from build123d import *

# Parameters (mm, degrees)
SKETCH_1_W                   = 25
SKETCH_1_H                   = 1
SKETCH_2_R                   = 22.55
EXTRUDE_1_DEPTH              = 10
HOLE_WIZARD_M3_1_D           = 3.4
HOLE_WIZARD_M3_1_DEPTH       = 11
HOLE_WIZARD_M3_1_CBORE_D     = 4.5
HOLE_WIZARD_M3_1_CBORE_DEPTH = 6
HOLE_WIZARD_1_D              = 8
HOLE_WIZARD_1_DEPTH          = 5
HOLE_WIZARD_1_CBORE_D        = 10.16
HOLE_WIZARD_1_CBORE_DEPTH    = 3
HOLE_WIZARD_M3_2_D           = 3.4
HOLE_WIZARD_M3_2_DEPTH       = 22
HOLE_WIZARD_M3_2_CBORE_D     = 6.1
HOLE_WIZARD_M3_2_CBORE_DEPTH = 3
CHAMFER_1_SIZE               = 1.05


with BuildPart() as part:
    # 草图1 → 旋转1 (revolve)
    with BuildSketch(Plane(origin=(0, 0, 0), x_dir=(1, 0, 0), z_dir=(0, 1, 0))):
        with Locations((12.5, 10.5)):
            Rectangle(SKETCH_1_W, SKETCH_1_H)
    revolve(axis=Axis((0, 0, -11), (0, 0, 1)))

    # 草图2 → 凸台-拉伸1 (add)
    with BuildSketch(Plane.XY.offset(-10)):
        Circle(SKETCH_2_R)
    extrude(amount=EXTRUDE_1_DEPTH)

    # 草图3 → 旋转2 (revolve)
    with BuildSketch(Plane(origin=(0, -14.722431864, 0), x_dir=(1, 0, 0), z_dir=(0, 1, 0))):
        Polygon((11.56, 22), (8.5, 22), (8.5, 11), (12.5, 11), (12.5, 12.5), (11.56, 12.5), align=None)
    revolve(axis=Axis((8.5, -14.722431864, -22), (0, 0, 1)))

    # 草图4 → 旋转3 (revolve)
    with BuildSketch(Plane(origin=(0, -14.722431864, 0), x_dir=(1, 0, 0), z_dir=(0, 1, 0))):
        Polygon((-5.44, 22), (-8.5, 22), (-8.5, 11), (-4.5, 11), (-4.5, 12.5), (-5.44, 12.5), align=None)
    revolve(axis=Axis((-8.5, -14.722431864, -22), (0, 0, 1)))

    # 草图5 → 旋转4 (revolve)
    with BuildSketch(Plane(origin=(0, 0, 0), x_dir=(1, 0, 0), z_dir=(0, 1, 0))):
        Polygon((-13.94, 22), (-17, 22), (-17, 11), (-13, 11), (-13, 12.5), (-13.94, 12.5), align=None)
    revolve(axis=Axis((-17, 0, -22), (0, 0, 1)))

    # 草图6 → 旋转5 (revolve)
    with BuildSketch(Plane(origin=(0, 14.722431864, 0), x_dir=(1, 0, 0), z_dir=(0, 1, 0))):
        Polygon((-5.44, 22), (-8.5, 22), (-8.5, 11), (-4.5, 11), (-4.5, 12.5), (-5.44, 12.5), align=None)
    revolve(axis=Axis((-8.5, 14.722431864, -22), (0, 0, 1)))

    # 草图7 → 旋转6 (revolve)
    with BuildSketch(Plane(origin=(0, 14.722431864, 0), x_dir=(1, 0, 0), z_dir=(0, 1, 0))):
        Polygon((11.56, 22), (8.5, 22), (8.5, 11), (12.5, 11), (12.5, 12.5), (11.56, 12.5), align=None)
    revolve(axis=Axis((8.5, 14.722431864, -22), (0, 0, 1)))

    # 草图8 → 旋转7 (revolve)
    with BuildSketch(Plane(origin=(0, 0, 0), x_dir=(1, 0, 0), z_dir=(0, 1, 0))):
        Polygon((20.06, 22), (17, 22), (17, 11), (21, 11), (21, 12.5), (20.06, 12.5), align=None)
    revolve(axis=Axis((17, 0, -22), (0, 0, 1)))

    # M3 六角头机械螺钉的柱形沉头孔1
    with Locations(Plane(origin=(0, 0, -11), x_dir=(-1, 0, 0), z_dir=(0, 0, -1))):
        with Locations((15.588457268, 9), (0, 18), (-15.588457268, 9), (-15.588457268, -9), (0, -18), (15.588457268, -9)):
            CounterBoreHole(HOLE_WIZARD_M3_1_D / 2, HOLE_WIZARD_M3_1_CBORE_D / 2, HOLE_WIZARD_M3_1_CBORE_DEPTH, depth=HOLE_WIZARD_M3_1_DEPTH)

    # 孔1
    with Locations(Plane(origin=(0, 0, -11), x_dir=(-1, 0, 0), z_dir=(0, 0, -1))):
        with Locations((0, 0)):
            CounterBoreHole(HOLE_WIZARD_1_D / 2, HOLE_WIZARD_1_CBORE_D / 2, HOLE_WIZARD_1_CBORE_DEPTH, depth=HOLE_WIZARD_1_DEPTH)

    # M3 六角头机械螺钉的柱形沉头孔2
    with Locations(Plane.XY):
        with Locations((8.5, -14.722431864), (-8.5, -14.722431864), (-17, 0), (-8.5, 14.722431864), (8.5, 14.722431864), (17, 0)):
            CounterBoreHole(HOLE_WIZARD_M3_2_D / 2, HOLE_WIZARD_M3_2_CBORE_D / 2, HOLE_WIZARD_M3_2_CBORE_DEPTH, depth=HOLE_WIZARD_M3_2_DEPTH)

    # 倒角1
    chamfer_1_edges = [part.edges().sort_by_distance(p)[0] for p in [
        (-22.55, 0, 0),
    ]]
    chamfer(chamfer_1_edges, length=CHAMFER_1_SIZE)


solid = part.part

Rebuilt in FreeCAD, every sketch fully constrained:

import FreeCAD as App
import Part
import Sketcher

V = App.Vector
Q = App.Units.Quantity


def edges_at(feature, points):
    """Names of the edges that pass closest to the given points."""
    edges = feature.Shape.Edges
    near = lambda p: min(range(len(edges)), key=lambda i: edges[i].distToShape(Part.Vertex(*p))[0])
    return sorted({f"Edge{near(p) + 1}" for p in points})


def add_polygon(sketch, points):
    """Adds a closed chain of lines whose ends are joined by coincident constraints."""
    first, n = sketch.GeometryCount, len(points)
    for a, b in zip(points, points[1:] + points[:1]):
        sketch.addGeometry(Part.LineSegment(App.Vector(*a, 0), App.Vector(*b, 0)), False)
    for i in range(n):
        sketch.addConstraint(Sketcher.Constraint("Coincident", first + i, 2, first + (i + 1) % n, 1))

doc = App.newDocument("Part")
body = doc.addObject("PartDesign::Body", "Body")

sketch1 = body.newObject("Sketcher::SketchObject", "Sketch")
sketch1.AttachmentSupport = (doc.getObject("XZ_Plane"), [""])
sketch1.MapMode = "FlatFace"
add_polygon(sketch1, [(0, -11), (0, -10), (25, -10), (25, -11)])
sketch1.addConstraint(Sketcher.Constraint("Vertical", 0))
sketch1.addConstraint(Sketcher.Constraint("Horizontal", 1))
sketch1.addConstraint(Sketcher.Constraint("Vertical", 2))
sketch1.addConstraint(Sketcher.Constraint("Horizontal", 3))
sketch1.addConstraint(Sketcher.Constraint("PointOnObject", 0, 2, -2))
sketch1.addConstraint(Sketcher.Constraint("DistanceX", 1, 1, 1, 2, Q("25 mm")))
sketch1.addConstraint(Sketcher.Constraint("DistanceY", 0, 1, 0, 2, Q("1 mm")))
sketch1.addConstraint(Sketcher.Constraint("DistanceY", 0, 2, -1, 1, Q("10 mm")))
revolution = body.newObject("PartDesign::Revolution", "Revolution")
revolution.Profile = sketch1
revolution.ReferenceAxis = (sketch1, ["V_Axis"])
revolution.Angle = 360

sketch2 = body.newObject("Sketcher::SketchObject", "Sketch001")
sketch2.AttachmentSupport = (doc.getObject("XY_Plane"), [""])
sketch2.MapMode = "FlatFace"
sketch2.AttachmentOffset = App.Placement(V(0, 0, -10), App.Rotation())
sketch2.addGeometry(Part.Circle(V(0, 0, 0), V(0, 0, 1), 23), False)
sketch2.addConstraint(Sketcher.Constraint("Coincident", 0, 3, -1, 1))
sketch2.addConstraint(Sketcher.Constraint("Diameter", 0, Q("45.1 mm")))
pad1 = body.newObject("PartDesign::Pad", "Pad")
pad1.Profile = sketch2
pad1.Length = 10

sketch3 = body.newObject("Sketcher::SketchObject", "Sketch002")
sketch3.AttachmentSupport = (doc.getObject("XZ_Plane"), [""])
sketch3.MapMode = "FlatFace"
sketch3.AttachmentOffset = App.Placement(V(0, 0, 14.722432), App.Rotation())
add_polygon(sketch3, [(11.6, -22), (8.5, -22), (8.5, -11), (12.5, -11), (12.5, -12.5), (11.6, -12.5)])
sketch3.addGeometry(Part.LineSegment(V(8.5, -22, 0), V(8.5, -11, 0)), True)
sketch3.addConstraint(Sketcher.Constraint("Horizontal", 0))
sketch3.addConstraint(Sketcher.Constraint("Vertical", 1))
sketch3.addConstraint(Sketcher.Constraint("Horizontal", 2))
sketch3.addConstraint(Sketcher.Constraint("Vertical", 3))
sketch3.addConstraint(Sketcher.Constraint("Horizontal", 4))
sketch3.addConstraint(Sketcher.Constraint("Vertical", 5))
sketch3.addConstraint(Sketcher.Constraint("Vertical", 6))
sketch3.addConstraint(Sketcher.Constraint("Coincident", 6, 1, 0, 2))
sketch3.addConstraint(Sketcher.Constraint("Horizontal", 2, 2, 6, 2))
sketch3.addConstraint(Sketcher.Constraint("DistanceX", 2, 1, 2, 2, Q("4 mm")))
sketch3.addConstraint(Sketcher.Constraint("DistanceY", 1, 1, 1, 2, Q("11 mm")))
sketch3.addConstraint(Sketcher.Constraint("DistanceY", 3, 2, 3, 1, Q("1.5 mm")))
sketch3.addConstraint(Sketcher.Constraint("DistanceY", 0, 2, -1, 1, Q("22 mm")))
sketch3.addConstraint(Sketcher.Constraint("DistanceX", 0, 2, 0, 1, Q("3.06 mm")))
sketch3.addConstraint(Sketcher.Constraint("DistanceX", -1, 1, 0, 2, Q("8.5 mm")))
revolution2 = body.newObject("PartDesign::Revolution", "Revolution001")
revolution2.Profile = sketch3
revolution2.ReferenceAxis = (sketch3, ["Axis0"])
revolution2.Angle = 360

sketch4 = body.newObject("Sketcher::SketchObject", "Sketch003")
sketch4.AttachmentSupport = (doc.getObject("XZ_Plane"), [""])
sketch4.MapMode = "FlatFace"
sketch4.AttachmentOffset = App.Placement(V(0, 0, 14.722432), App.Rotation())
add_polygon(sketch4, [(-5.4, -22), (-8.5, -22), (-8.5, -11), (-4.5, -11), (-4.5, -12.5), (-5.4, -12.5)])
sketch4.addGeometry(Part.LineSegment(V(-8.5, -22, 0), V(-8.5, -11, 0)), True)
sketch4.addConstraint(Sketcher.Constraint("Horizontal", 0))
sketch4.addConstraint(Sketcher.Constraint("Vertical", 1))
sketch4.addConstraint(Sketcher.Constraint("Horizontal", 2))
sketch4.addConstraint(Sketcher.Constraint("Vertical", 3))
sketch4.addConstraint(Sketcher.Constraint("Horizontal", 4))
sketch4.addConstraint(Sketcher.Constraint("Vertical", 5))
sketch4.addConstraint(Sketcher.Constraint("Vertical", 6))
sketch4.addConstraint(Sketcher.Constraint("Coincident", 6, 1, 0, 2))
sketch4.addConstraint(Sketcher.Constraint("Horizontal", 2, 2, 6, 2))
sketch4.addConstraint(Sketcher.Constraint("DistanceX", 2, 1, 2, 2, Q("4 mm")))
sketch4.addConstraint(Sketcher.Constraint("DistanceY", 1, 1, 1, 2, Q("11 mm")))
sketch4.addConstraint(Sketcher.Constraint("DistanceY", 3, 2, 3, 1, Q("1.5 mm")))
sketch4.addConstraint(Sketcher.Constraint("DistanceY", 0, 2, -1, 1, Q("22 mm")))
sketch4.addConstraint(Sketcher.Constraint("DistanceX", 0, 2, 0, 1, Q("3.06 mm")))
sketch4.addConstraint(Sketcher.Constraint("DistanceX", 0, 2, -1, 1, Q("8.5 mm")))
revolution3 = body.newObject("PartDesign::Revolution", "Revolution002")
revolution3.Profile = sketch4
revolution3.ReferenceAxis = (sketch4, ["Axis0"])
revolution3.Angle = 360

sketch5 = body.newObject("Sketcher::SketchObject", "Sketch004")
sketch5.AttachmentSupport = (doc.getObject("XZ_Plane"), [""])
sketch5.MapMode = "FlatFace"
add_polygon(sketch5, [(-13.9, -22), (-17, -22), (-17, -11), (-13, -11), (-13, -12.5), (-13.9, -12.5)])
sketch5.addGeometry(Part.LineSegment(V(-17, -22, 0), V(-17, -11, 0)), True)
sketch5.addConstraint(Sketcher.Constraint("Horizontal", 0))
sketch5.addConstraint(Sketcher.Constraint("Vertical", 1))
sketch5.addConstraint(Sketcher.Constraint("Horizontal", 2))
sketch5.addConstraint(Sketcher.Constraint("Vertical", 3))
sketch5.addConstraint(Sketcher.Constraint("Horizontal", 4))
sketch5.addConstraint(Sketcher.Constraint("Vertical", 5))
sketch5.addConstraint(Sketcher.Constraint("Vertical", 6))
sketch5.addConstraint(Sketcher.Constraint("Coincident", 6, 1, 0, 2))
sketch5.addConstraint(Sketcher.Constraint("Horizontal", 2, 2, 6, 2))
sketch5.addConstraint(Sketcher.Constraint("DistanceX", 2, 1, 2, 2, Q("4 mm")))
sketch5.addConstraint(Sketcher.Constraint("DistanceY", 1, 1, 1, 2, Q("11 mm")))
sketch5.addConstraint(Sketcher.Constraint("DistanceY", 3, 2, 3, 1, Q("1.5 mm")))
sketch5.addConstraint(Sketcher.Constraint("DistanceX", 0, 2, -1, 1, Q("17 mm")))
sketch5.addConstraint(Sketcher.Constraint("DistanceY", 0, 2, -1, 1, Q("22 mm")))
sketch5.addConstraint(Sketcher.Constraint("DistanceX", 0, 2, 0, 1, Q("3.06 mm")))
revolution4 = body.newObject("PartDesign::Revolution", "Revolution003")
revolution4.Profile = sketch5
revolution4.ReferenceAxis = (sketch5, ["Axis0"])
revolution4.Angle = 360

sketch6 = body.newObject("Sketcher::SketchObject", "Sketch005")
sketch6.AttachmentSupport = (doc.getObject("XZ_Plane"), [""])
sketch6.MapMode = "FlatFace"
sketch6.AttachmentOffset = App.Placement(V(0, 0, -14.722432), App.Rotation())
add_polygon(sketch6, [(-5.4, -22), (-8.5, -22), (-8.5, -11), (-4.5, -11), (-4.5, -12.5), (-5.4, -12.5)])
sketch6.addGeometry(Part.LineSegment(V(-8.5, -22, 0), V(-8.5, -11, 0)), True)
sketch6.addConstraint(Sketcher.Constraint("Horizontal", 0))
sketch6.addConstraint(Sketcher.Constraint("Vertical", 1))
sketch6.addConstraint(Sketcher.Constraint("Horizontal", 2))
sketch6.addConstraint(Sketcher.Constraint("Vertical", 3))
sketch6.addConstraint(Sketcher.Constraint("Horizontal", 4))
sketch6.addConstraint(Sketcher.Constraint("Vertical", 5))
sketch6.addConstraint(Sketcher.Constraint("Vertical", 6))
sketch6.addConstraint(Sketcher.Constraint("Coincident", 6, 1, 0, 2))
sketch6.addConstraint(Sketcher.Constraint("Horizontal", 2, 2, 6, 2))
sketch6.addConstraint(Sketcher.Constraint("DistanceX", 2, 1, 2, 2, Q("4 mm")))
sketch6.addConstraint(Sketcher.Constraint("DistanceY", 1, 1, 1, 2, Q("11 mm")))
sketch6.addConstraint(Sketcher.Constraint("DistanceY", 3, 2, 3, 1, Q("1.5 mm")))
sketch6.addConstraint(Sketcher.Constraint("DistanceY", 0, 2, -1, 1, Q("22 mm")))
sketch6.addConstraint(Sketcher.Constraint("DistanceX", 0, 2, 0, 1, Q("3.06 mm")))
sketch6.addConstraint(Sketcher.Constraint("DistanceX", 0, 2, -1, 1, Q("8.5 mm")))
revolution5 = body.newObject("PartDesign::Revolution", "Revolution004")
revolution5.Profile = sketch6
revolution5.ReferenceAxis = (sketch6, ["Axis0"])
revolution5.Angle = 360

sketch7 = body.newObject("Sketcher::SketchObject", "Sketch006")
sketch7.AttachmentSupport = (doc.getObject("XZ_Plane"), [""])
sketch7.MapMode = "FlatFace"
sketch7.AttachmentOffset = App.Placement(V(0, 0, -14.722432), App.Rotation())
add_polygon(sketch7, [(11.6, -22), (8.5, -22), (8.5, -11), (12.5, -11), (12.5, -12.5), (11.6, -12.5)])
sketch7.addGeometry(Part.LineSegment(V(8.5, -22, 0), V(8.5, -11, 0)), True)
sketch7.addConstraint(Sketcher.Constraint("Horizontal", 0))
sketch7.addConstraint(Sketcher.Constraint("Vertical", 1))
sketch7.addConstraint(Sketcher.Constraint("Horizontal", 2))
sketch7.addConstraint(Sketcher.Constraint("Vertical", 3))
sketch7.addConstraint(Sketcher.Constraint("Horizontal", 4))
sketch7.addConstraint(Sketcher.Constraint("Vertical", 5))
sketch7.addConstraint(Sketcher.Constraint("Vertical", 6))
sketch7.addConstraint(Sketcher.Constraint("Coincident", 6, 1, 0, 2))
sketch7.addConstraint(Sketcher.Constraint("Horizontal", 2, 2, 6, 2))
sketch7.addConstraint(Sketcher.Constraint("DistanceX", 2, 1, 2, 2, Q("4 mm")))
sketch7.addConstraint(Sketcher.Constraint("DistanceY", 1, 1, 1, 2, Q("11 mm")))
sketch7.addConstraint(Sketcher.Constraint("DistanceY", 3, 2, 3, 1, Q("1.5 mm")))
sketch7.addConstraint(Sketcher.Constraint("DistanceY", 0, 2, -1, 1, Q("22 mm")))
sketch7.addConstraint(Sketcher.Constraint("DistanceX", 0, 2, 0, 1, Q("3.06 mm")))
sketch7.addConstraint(Sketcher.Constraint("DistanceX", -1, 1, 0, 2, Q("8.5 mm")))
revolution6 = body.newObject("PartDesign::Revolution", "Revolution005")
revolution6.Profile = sketch7
revolution6.ReferenceAxis = (sketch7, ["Axis0"])
revolution6.Angle = 360

sketch8 = body.newObject("Sketcher::SketchObject", "Sketch007")
sketch8.AttachmentSupport = (doc.getObject("XZ_Plane"), [""])
sketch8.MapMode = "FlatFace"
add_polygon(sketch8, [(20.1, -22), (17, -22), (17, -11), (21, -11), (21, -12.5), (20.1, -12.5)])
sketch8.addGeometry(Part.LineSegment(V(17, -22, 0), V(17, -11, 0)), True)
sketch8.addConstraint(Sketcher.Constraint("Horizontal", 0))
sketch8.addConstraint(Sketcher.Constraint("Vertical", 1))
sketch8.addConstraint(Sketcher.Constraint("Horizontal", 2))
sketch8.addConstraint(Sketcher.Constraint("Vertical", 3))
sketch8.addConstraint(Sketcher.Constraint("Horizontal", 4))
sketch8.addConstraint(Sketcher.Constraint("Vertical", 5))
sketch8.addConstraint(Sketcher.Constraint("Vertical", 6))
sketch8.addConstraint(Sketcher.Constraint("Coincident", 6, 1, 0, 2))
sketch8.addConstraint(Sketcher.Constraint("Horizontal", 2, 2, 6, 2))
sketch8.addConstraint(Sketcher.Constraint("DistanceX", 2, 1, 2, 2, Q("4 mm")))
sketch8.addConstraint(Sketcher.Constraint("DistanceY", 1, 1, 1, 2, Q("11 mm")))
sketch8.addConstraint(Sketcher.Constraint("DistanceY", 3, 2, 3, 1, Q("1.5 mm")))
sketch8.addConstraint(Sketcher.Constraint("DistanceX", -1, 1, 0, 2, Q("17 mm")))
sketch8.addConstraint(Sketcher.Constraint("DistanceY", 0, 2, -1, 1, Q("22 mm")))
sketch8.addConstraint(Sketcher.Constraint("DistanceX", 0, 2, 0, 1, Q("3.06 mm")))
revolution7 = body.newObject("PartDesign::Revolution", "Revolution006")
revolution7.Profile = sketch8
revolution7.ReferenceAxis = (sketch8, ["Axis0"])
revolution7.Angle = 360

sketch9 = body.newObject("Sketcher::SketchObject", "Sketch008")
sketch9.AttachmentSupport = (doc.getObject("XY_Plane"), [""])
sketch9.MapMode = "FlatFace"
sketch9.AttachmentOffset = App.Placement(V(0, 0, -11), App.Rotation())
sketch9.addGeometry(Part.Circle(V(-15.6, 9, 0), V(0, 0, 1), 1.7), False)
sketch9.addGeometry(Part.Circle(V(0, 18, 0), V(0, 0, 1), 1.7), False)
sketch9.addGeometry(Part.Circle(V(15.6, 9, 0), V(0, 0, 1), 1.7), False)
sketch9.addGeometry(Part.Circle(V(15.6, -9, 0), V(0, 0, 1), 1.7), False)
sketch9.addGeometry(Part.Circle(V(0, -18, 0), V(0, 0, 1), 1.7), False)
sketch9.addGeometry(Part.Circle(V(-15.6, -9, 0), V(0, 0, 1), 1.7), False)
sketch9.addConstraint(Sketcher.Constraint("Equal", 0, 1))
sketch9.addConstraint(Sketcher.Constraint("Equal", 1, 2))
sketch9.addConstraint(Sketcher.Constraint("Equal", 2, 3))
sketch9.addConstraint(Sketcher.Constraint("Equal", 3, 4))
sketch9.addConstraint(Sketcher.Constraint("Equal", 4, 5))
sketch9.addConstraint(Sketcher.Constraint("Symmetric", 0, 3, 3, 3, -1, 1))
sketch9.addConstraint(Sketcher.Constraint("Symmetric", 1, 3, 4, 3, -1, 1))
sketch9.addConstraint(Sketcher.Constraint("Symmetric", 2, 3, 5, 3, -1, 1))
sketch9.addConstraint(Sketcher.Constraint("Symmetric", 0, 3, 2, 3, -2))
sketch9.addConstraint(Sketcher.Constraint("PointOnObject", 1, 3, -2))
sketch9.addConstraint(Sketcher.Constraint("Diameter", 0, Q("3.4 mm")))
sketch9.addConstraint(Sketcher.Constraint("DistanceY", -1, 1, 0, 3, Q("9 mm")))
sketch9.addConstraint(Sketcher.Constraint("DistanceY", -1, 1, 1, 3, Q("18 mm")))
sketch9.addConstraint(Sketcher.Constraint("DistanceX", 0, 3, -1, 1, Q("15.588457 mm")))
doc.recompute()
hole = body.newObject("PartDesign::Hole", "Hole")
hole.Profile = sketch9
hole.ThreadType = "None"
hole.Diameter = 3.4
hole.DepthType = "Dimension"
hole.Depth = 11
hole.DrillPoint = "Flat"
hole.HoleCutType = "Counterbore"
hole.HoleCutDiameter = 4.5
hole.HoleCutDepth = 6
hole.Reversed = True

sketch10 = body.newObject("Sketcher::SketchObject", "Sketch009")
sketch10.AttachmentSupport = (doc.getObject("XY_Plane"), [""])
sketch10.MapMode = "FlatFace"
sketch10.AttachmentOffset = App.Placement(V(0, 0, -11), App.Rotation())
sketch10.addGeometry(Part.Circle(V(0, 0, 0), V(0, 0, 1), 4), False)
sketch10.addConstraint(Sketcher.Constraint("Coincident", 0, 3, -1, 1))
sketch10.addConstraint(Sketcher.Constraint("Diameter", 0, Q("8 mm")))
doc.recompute()
hole2 = body.newObject("PartDesign::Hole", "Hole001")
hole2.Profile = sketch10
hole2.ThreadType = "None"
hole2.Diameter = 8
hole2.DepthType = "Dimension"
hole2.Depth = 5
hole2.DrillPoint = "Flat"
hole2.HoleCutType = "Counterbore"
hole2.HoleCutDiameter = 10.16
hole2.HoleCutDepth = 3
hole2.Reversed = True

sketch11 = body.newObject("Sketcher::SketchObject", "Sketch010")
sketch11.AttachmentSupport = (doc.getObject("XY_Plane"), [""])
sketch11.MapMode = "FlatFace"
sketch11.addGeometry(Part.Circle(V(8.5, -14.7, 0), V(0, 0, 1), 1.7), False)
sketch11.addGeometry(Part.Circle(V(-8.5, -14.7, 0), V(0, 0, 1), 1.7), False)
sketch11.addGeometry(Part.Circle(V(-17, 0, 0), V(0, 0, 1), 1.7), False)
sketch11.addGeometry(Part.Circle(V(-8.5, 14.7, 0), V(0, 0, 1), 1.7), False)
sketch11.addGeometry(Part.Circle(V(8.5, 14.7, 0), V(0, 0, 1), 1.7), False)
sketch11.addGeometry(Part.Circle(V(17, 0, 0), V(0, 0, 1), 1.7), False)
sketch11.addConstraint(Sketcher.Constraint("Equal", 0, 1))
sketch11.addConstraint(Sketcher.Constraint("Equal", 1, 2))
sketch11.addConstraint(Sketcher.Constraint("Equal", 2, 3))
sketch11.addConstraint(Sketcher.Constraint("Equal", 3, 4))
sketch11.addConstraint(Sketcher.Constraint("Equal", 4, 5))
sketch11.addConstraint(Sketcher.Constraint("Symmetric", 0, 3, 3, 3, -1, 1))
sketch11.addConstraint(Sketcher.Constraint("Symmetric", 1, 3, 4, 3, -1, 1))
sketch11.addConstraint(Sketcher.Constraint("Symmetric", 2, 3, 5, 3, -1, 1))
sketch11.addConstraint(Sketcher.Constraint("Symmetric", 0, 3, 1, 3, -2))
sketch11.addConstraint(Sketcher.Constraint("PointOnObject", 2, 3, -1))
sketch11.addConstraint(Sketcher.Constraint("Diameter", 0, Q("3.4 mm")))
sketch11.addConstraint(Sketcher.Constraint("DistanceX", 2, 3, -1, 1, Q("17 mm")))
sketch11.addConstraint(Sketcher.Constraint("DistanceX", 1, 3, 0, 3, Q("17 mm")))
sketch11.addConstraint(Sketcher.Constraint("DistanceY", 0, 3, -1, 1, Q("14.722432 mm")))
doc.recompute()
hole3 = body.newObject("PartDesign::Hole", "Hole002")
hole3.Profile = sketch11
hole3.ThreadType = "None"
hole3.Diameter = 3.4
hole3.DepthType = "Dimension"
hole3.Depth = 22
hole3.DrillPoint = "Flat"
hole3.HoleCutType = "Counterbore"
hole3.HoleCutDiameter = 6.1
hole3.HoleCutDepth = 3
doc.recompute()

chamfer = body.newObject("PartDesign::Chamfer", "Chamfer")
chamfer.Base = (hole3, edges_at(hole3, [(-22.55, 0, 0)]))
chamfer.Size = 1.05

doc.recompute()
